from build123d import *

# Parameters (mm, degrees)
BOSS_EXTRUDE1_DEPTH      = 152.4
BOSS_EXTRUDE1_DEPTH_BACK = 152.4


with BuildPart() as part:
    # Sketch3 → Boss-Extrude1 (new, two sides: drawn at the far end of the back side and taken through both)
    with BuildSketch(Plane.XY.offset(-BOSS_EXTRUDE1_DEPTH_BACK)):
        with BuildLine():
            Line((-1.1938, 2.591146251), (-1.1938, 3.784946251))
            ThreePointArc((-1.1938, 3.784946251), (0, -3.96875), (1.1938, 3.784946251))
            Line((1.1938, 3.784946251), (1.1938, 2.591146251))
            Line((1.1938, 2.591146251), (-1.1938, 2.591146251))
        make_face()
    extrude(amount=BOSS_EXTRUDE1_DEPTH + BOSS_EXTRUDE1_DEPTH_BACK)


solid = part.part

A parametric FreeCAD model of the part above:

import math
import FreeCAD as App
import Part
import Sketcher

V = App.Vector
Q = App.Units.Quantity

doc = App.newDocument("Part")
params = doc.addObject("Spreadsheet::Sheet", "Params")
for row, (alias, value) in enumerate([
    ("sketch1_radius", "0.15625 in"),
    ("sketch1_width", "0.094 in"),
    ("sketch1_height", "0.047 in"),
    ("pad1_length", "6 in"),
    ("pad1_length2", "6 in"),
], start=1):
    params.set(f"A{row}", alias)
    params.set(f"B{row}", "=" + value)
    params.setAlias(f"B{row}", alias)

body = doc.addObject("PartDesign::Body", "Body")

# Sketch on XY plane
sketch1 = body.newObject("Sketcher::SketchObject", "Sketch")
sketch1.AttachmentSupport = (doc.getObject("XY_Plane"), [""])
sketch1.MapMode = "FlatFace"
sketch1.addGeometry([
    Part.LineSegment(V(-1.2, 2.6, 0), V(-1.2, 3.8, 0)),
    Part.ArcOfCircle(Part.Circle(V(0, 0, 0), V(0, 0, 1), 4), math.radians(108), math.radians(432)),
    Part.LineSegment(V(1.2, 3.8, 0), V(1.2, 2.6, 0)),
    Part.LineSegment(V(1.2, 2.6, 0), V(-1.2, 2.6, 0)),
], False)
sketch1.addConstraint([
    Sketcher.Constraint("Coincident", 0, 2, 1, 1),
    Sketcher.Constraint("Coincident", 1, 2, 2, 1),
    Sketcher.Constraint("Coincident", 2, 2, 3, 1),
    Sketcher.Constraint("Coincident", 3, 2, 0, 1),
    Sketcher.Constraint("Vertical", 0),
    Sketcher.Constraint("Vertical", 2),
    Sketcher.Constraint("Horizontal", 3),
    Sketcher.Constraint("Coincident", 1, 3, -1, 1),
    Sketcher.Constraint("Horizontal", 0, 2, 1, 2),
    Sketcher.Constraint("Radius", 1, Q("0.15625 in")),
    Sketcher.Constraint("DistanceX", 3, 2, 3, 1, Q("0.094 in")),
    Sketcher.Constraint("DistanceY", 0, 1, 0, 2, Q("0.047 in")),
])
sketch1.setExpression("Constraints[9]", "Params.sketch1_radius")
sketch1.setExpression("Constraints[10]", "Params.sketch1_width")
sketch1.setExpression("Constraints[11]", "Params.sketch1_height")
pad1 = body.newObject("PartDesign::Pad", "Pad")
pad1.Profile = sketch1
pad1.Type = "TwoLengths"
pad1.setExpression("Length", "Params.pad1_length")
pad1.setExpression("Length2", "Params.pad1_length2")

doc.recompute()
